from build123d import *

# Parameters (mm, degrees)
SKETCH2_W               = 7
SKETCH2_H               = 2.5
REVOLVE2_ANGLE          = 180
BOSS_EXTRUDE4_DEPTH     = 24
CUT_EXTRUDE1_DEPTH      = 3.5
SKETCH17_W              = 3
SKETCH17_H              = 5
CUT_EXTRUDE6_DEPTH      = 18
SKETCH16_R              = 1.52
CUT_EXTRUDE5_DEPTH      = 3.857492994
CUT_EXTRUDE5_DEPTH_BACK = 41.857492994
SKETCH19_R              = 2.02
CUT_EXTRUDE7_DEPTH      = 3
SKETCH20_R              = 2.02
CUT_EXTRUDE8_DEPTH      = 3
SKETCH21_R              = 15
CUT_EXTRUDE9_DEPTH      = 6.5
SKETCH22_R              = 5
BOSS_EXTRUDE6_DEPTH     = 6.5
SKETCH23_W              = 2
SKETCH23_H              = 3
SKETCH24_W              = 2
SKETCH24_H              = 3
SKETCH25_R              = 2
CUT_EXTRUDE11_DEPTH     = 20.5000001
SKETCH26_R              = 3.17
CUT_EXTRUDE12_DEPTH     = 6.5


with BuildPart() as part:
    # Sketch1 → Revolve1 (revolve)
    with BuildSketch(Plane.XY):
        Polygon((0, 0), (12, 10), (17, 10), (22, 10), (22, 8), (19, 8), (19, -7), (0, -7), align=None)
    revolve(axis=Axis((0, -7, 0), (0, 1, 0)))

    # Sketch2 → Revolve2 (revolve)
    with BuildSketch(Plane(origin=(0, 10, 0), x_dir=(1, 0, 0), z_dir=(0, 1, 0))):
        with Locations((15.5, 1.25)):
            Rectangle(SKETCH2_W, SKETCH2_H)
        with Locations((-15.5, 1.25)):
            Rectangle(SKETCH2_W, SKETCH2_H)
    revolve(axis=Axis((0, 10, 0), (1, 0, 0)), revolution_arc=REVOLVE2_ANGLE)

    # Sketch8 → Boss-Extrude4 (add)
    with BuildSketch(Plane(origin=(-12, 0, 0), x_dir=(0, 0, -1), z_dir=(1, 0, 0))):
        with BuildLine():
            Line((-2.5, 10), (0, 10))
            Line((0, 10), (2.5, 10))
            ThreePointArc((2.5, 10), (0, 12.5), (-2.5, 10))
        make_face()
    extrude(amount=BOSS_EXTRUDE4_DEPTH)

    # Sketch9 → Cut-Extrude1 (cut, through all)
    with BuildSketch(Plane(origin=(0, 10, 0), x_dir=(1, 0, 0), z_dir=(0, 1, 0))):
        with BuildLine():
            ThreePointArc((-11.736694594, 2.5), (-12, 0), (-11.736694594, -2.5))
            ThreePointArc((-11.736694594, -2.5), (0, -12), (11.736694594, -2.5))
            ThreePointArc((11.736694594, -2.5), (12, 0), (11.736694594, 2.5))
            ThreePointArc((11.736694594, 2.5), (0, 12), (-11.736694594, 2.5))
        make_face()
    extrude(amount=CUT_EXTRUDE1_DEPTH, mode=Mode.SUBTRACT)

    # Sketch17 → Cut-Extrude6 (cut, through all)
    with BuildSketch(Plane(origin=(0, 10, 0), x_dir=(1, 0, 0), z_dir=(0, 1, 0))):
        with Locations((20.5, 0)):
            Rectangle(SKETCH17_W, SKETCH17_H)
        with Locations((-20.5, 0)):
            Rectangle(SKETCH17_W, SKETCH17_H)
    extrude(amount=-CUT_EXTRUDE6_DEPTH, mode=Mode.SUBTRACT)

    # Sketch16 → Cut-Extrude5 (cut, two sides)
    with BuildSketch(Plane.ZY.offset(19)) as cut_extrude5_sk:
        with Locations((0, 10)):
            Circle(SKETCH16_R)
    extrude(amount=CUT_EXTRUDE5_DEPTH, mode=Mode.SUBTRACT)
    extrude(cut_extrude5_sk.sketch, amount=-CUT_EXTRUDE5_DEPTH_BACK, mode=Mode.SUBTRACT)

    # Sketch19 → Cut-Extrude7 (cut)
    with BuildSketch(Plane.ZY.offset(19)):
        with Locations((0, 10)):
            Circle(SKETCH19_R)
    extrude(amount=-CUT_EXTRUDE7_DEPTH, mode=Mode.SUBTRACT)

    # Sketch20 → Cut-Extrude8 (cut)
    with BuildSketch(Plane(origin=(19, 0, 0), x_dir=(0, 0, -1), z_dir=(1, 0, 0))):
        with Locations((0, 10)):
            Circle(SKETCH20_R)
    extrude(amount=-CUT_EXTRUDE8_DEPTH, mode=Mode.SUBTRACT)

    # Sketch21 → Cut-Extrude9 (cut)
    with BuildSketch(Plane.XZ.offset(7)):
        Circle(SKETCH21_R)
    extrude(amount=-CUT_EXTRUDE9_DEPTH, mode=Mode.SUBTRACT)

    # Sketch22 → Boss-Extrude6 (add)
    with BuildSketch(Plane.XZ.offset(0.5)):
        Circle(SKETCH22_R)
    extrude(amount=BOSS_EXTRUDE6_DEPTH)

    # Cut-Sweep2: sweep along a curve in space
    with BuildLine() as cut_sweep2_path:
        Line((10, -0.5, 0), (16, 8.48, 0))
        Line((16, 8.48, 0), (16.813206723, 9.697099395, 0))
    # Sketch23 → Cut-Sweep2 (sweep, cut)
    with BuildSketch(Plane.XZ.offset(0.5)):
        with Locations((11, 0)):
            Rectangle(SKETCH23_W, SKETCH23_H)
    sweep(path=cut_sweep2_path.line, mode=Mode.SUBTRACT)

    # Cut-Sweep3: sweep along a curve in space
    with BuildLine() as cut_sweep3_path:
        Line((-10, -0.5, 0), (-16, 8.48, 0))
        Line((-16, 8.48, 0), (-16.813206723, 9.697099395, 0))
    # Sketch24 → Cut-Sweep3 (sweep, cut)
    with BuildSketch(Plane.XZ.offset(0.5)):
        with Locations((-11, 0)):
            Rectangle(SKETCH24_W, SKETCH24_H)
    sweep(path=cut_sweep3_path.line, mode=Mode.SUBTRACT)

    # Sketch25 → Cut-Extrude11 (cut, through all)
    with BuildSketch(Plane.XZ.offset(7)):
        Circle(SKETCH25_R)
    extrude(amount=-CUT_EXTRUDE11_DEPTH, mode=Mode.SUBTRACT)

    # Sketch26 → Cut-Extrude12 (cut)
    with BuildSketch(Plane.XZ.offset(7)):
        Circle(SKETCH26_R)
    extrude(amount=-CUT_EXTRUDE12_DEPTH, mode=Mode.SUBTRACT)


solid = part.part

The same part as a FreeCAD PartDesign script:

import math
import FreeCAD as App
import Part
import Sketcher
Q = App.Units.Quantity


def add_polygon(sketch, points):
    """Adds a closed chain of lines whose ends are joined by coincident constraints."""
    first, n = sketch.GeometryCount, len(points)
    for a, b in zip(points, points[1:] + points[:1]):
        sketch.addGeometry(Part.LineSegment(App.Vector(*a, 0), App.Vector(*b, 0)), False)
    for i in range(n):
        sketch.addConstraint(Sketcher.Constraint("Coincident", first + i, 2, first + (i + 1) % n, 1))

doc = App.newDocument("Part")
body = doc.addObject("PartDesign::Body", "Body")

sketch1 = body.newObject("Sketcher::SketchObject", "Sketch")
sketch1.AttachmentSupport = (doc.getObject("XY_Plane"), [""])
sketch1.MapMode = "FlatFace"
add_polygon(sketch1, [(12, 10), (0, 0), (0, -7), (19, -7), (19, 8), (22, 8), (22, 10)])
sketch1.addConstraint([
    Sketcher.Constraint("Vertical", 1),
    Sketcher.Constraint("Horizontal", 2),
    Sketcher.Constraint("Vertical", 3),
    Sketcher.Constraint("Horizontal", 4),
    Sketcher.Constraint("Vertical", 5),
    Sketcher.Constraint("Horizontal", 6),
    Sketcher.Constraint("Coincident", 0, 2, -1, 1),
    Sketcher.Constraint("DistanceX", 2, 1, 2, 2, Q("19 mm")),
    Sketcher.Constraint("DistanceX", 4, 1, 4, 2, Q("3 mm")),
    Sketcher.Constraint("DistanceX", 6, 2, 6, 1, Q("10 mm")),
    Sketcher.Constraint("DistanceY", 1, 2, 1, 1, Q("7 mm")),
    Sketcher.Constraint("DistanceY", 3, 1, 3, 2, Q("15 mm")),
    Sketcher.Constraint("DistanceY", 5, 1, 5, 2, Q("2 mm")),
])
revolution = body.newObject("PartDesign::Revolution", "Revolution")
revolution.Profile = sketch1
revolution.ReferenceAxis = (sketch1, ["V_Axis"])
revolution.Angle = 360

sketch2 = body.newObject("Sketcher::SketchObject", "Sketch001")
sketch2.AttachmentSupport = (doc.getObject("XZ_Plane"), [""])
sketch2.MapMode = "FlatFace"
sketch2.AttachmentOffset = App.Placement(App.Vector(0, 0, -10), App.Rotation())
add_polygon(sketch2, [(12, -2.5), (12, 0), (19, 0), (19, -2.5)])
add_polygon(sketch2, [(-19, -2.5), (-19, 0), (-12, 0), (-12, -2.5)])
sketch2.addConstraint([
    Sketcher.Constraint("Vertical", 0),
    Sketcher.Constraint("Horizontal", 1),
    Sketcher.Constraint("Vertical", 2),
    Sketcher.Constraint("Horizontal", 3),
    Sketcher.Constraint("Vertical", 4),
    Sketcher.Constraint("Horizontal", 5),
    Sketcher.Constraint("Vertical", 6),
    Sketcher.Constraint("Horizontal", 7),
    Sketcher.Constraint("Symmetric", 1, 2, 4, 2, -1, 1),
    Sketcher.Constraint("Symmetric", 0, 2, 5, 2, -2),
    Sketcher.Constraint("Horizontal", 3, 2, 6, 2),
    Sketcher.Constraint("DistanceX", 1, 1, 1, 2, Q("7 mm")),
    Sketcher.Constraint("DistanceY", 0, 1, 0, 2, Q("2.5 mm")),
    Sketcher.Constraint("DistanceX", -1, 1, 0, 2, Q("12 mm")),
])
revolution2 = body.newObject("PartDesign::Revolution", "Revolution001")
revolution2.Profile = sketch2
revolution2.ReferenceAxis = (sketch2, ["H_Axis"])
revolution2.Angle = 180

sketch3 = body.newObject("Sketcher::SketchObject", "Sketch002")
sketch3.AttachmentSupport = (doc.getObject("YZ_Plane"), [""])
sketch3.MapMode = "FlatFace"
sketch3.AttachmentOffset = App.Placement(App.Vector(0, 0, -12), App.Rotation())
sketch3.addGeometry([
    Part.LineSegment(App.Vector(10, 2.5, 0), App.Vector(10, -2.5, 0)),
    Part.ArcOfCircle(Part.Circle(App.Vector(10, 0, 0), App.Vector(0, 0, 1), 2.5), math.radians(-90), math.radians(90)),
], False)
sketch3.addConstraint([
    Sketcher.Constraint("Coincident", 0, 1, 1, 2),
    Sketcher.Constraint("Coincident", 1, 1, 0, 2),
    Sketcher.Constraint("Vertical", 0),
    Sketcher.Constraint("PointOnObject", 1, 3, -1),
    Sketcher.Constraint("Vertical", 1, 3, 0, 1),
    Sketcher.Constraint("Radius", 1, Q("2.5 mm")),
    Sketcher.Constraint("DistanceX", -1, 1, 1, 3, Q("10 mm")),
])
pad1 = body.newObject("PartDesign::Pad", "Pad")
pad1.Profile = sketch3
pad1.Length = 24

sketch4 = body.newObject("Sketcher::SketchObject", "Sketch003")
sketch4.AttachmentSupport = (doc.getObject("XZ_Plane"), [""])
sketch4.MapMode = "FlatFace"
sketch4.AttachmentOffset = App.Placement(App.Vector(0, 0, -10), App.Rotation())
sketch4.addGeometry([
    Part.ArcOfCircle(Part.Circle(App.Vector(0, 0, 0), App.Vector(0, 0, 1), 12), math.radians(168), math.radians(192)),
    Part.ArcOfCircle(Part.Circle(App.Vector(0, 0, 0), App.Vector(0, 0, 1), 12), math.radians(12), math.radians(168)),
    Part.ArcOfCircle(Part.Circle(App.Vector(0, 0, 0), App.Vector(0, 0, 1), 12), math.radians(-12), math.radians(12)),
    Part.ArcOfCircle(Part.Circle(App.Vector(0, 0, 0), App.Vector(0, 0, 1), 12), math.radians(-168), math.radians(-12)),
], False)
sketch4.addConstraint([
    Sketcher.Constraint("Tangent", 0, 1, 1, 2),
    Sketcher.Constraint("Tangent", 1, 1, 2, 2),
    Sketcher.Constraint("Tangent", 2, 1, 3, 2),
    Sketcher.Constraint("Tangent", 3, 1, 0, 2),
    Sketcher.Constraint("Coincident", 0, 3, -1, 1),
    Sketcher.Constraint("Equal", 0, 1),
    Sketcher.Constraint("Horizontal", 0, 1, 1, 1),
    Sketcher.Constraint("Horizontal", 2, 1, 3, 1),
    Sketcher.Constraint("Vertical", 1, 1, 2, 1),
    Sketcher.Constraint("Radius", 0, Q("12 mm")),
    Sketcher.Constraint("DistanceY", 2, 1, 1, 1, Q("5 mm")),
])
pocket1 = body.newObject("PartDesign::Pocket", "Pocket")
pocket1.Profile = sketch4
pocket1.Type = "ThroughAll"

sketch5 = body.newObject("Sketcher::SketchObject", "Sketch004")
sketch5.AttachmentSupport = (doc.getObject("XZ_Plane"), [""])
sketch5.MapMode = "FlatFace"
sketch5.AttachmentOffset = App.Placement(App.Vector(0, 0, -10), App.Rotation())
add_polygon(sketch5, [(19, -2.5), (19, 2.5), (22, 2.5), (22, -2.5)])
add_polygon(sketch5, [(-22, -2.5), (-22, 2.5), (-19, 2.5), (-19, -2.5)])
sketch5.addConstraint([
    Sketcher.Constraint("Vertical", 0),
    Sketcher.Constraint("Horizontal", 1),
    Sketcher.Constraint("Vertical", 2),
    Sketcher.Constraint("Horizontal", 3),
    Sketcher.Constraint("Vertical", 4),
    Sketcher.Constraint("Horizontal", 5),
    Sketcher.Constraint("Vertical", 6),
    Sketcher.Constraint("Horizontal", 7),
    Sketcher.Constraint("Symmetric", 2, 2, 4, 2, -1, 1),
    Sketcher.Constraint("Symmetric", 0, 2, 6, 2, -1, 1),
    Sketcher.Constraint("Horizontal", 1, 2, 4, 2),
    Sketcher.Constraint("DistanceX", 1, 1, 1, 2, Q("3 mm")),
    Sketcher.Constraint("DistanceY", 0, 1, 0, 2, Q("5 mm")),
    Sketcher.Constraint("DistanceX", -1, 1, 0, 2, Q("19 mm")),
])
pocket2 = body.newObject("PartDesign::Pocket", "Pocket001")
pocket2.Profile = sketch5
pocket2.Type = "ThroughAll"
pocket2.Reversed = True

sketch6 = body.newObject("Sketcher::SketchObject", "Sketch005")
sketch6.AttachmentSupport = (doc.getObject("YZ_Plane"), [""])
sketch6.MapMode = "FlatFace"
sketch6.AttachmentOffset = App.Placement(App.Vector(0, 0, -19), App.Rotation())
sketch6.addGeometry(Part.Circle(App.Vector(10, 0, 0), App.Vector(0, 0, 1), 1.5), False)
sketch6.addConstraint([
    Sketcher.Constraint("PointOnObject", 0, 3, -1),
    Sketcher.Constraint("Diameter", 0, Q("3.04 mm")),
    Sketcher.Constraint("DistanceX", -1, 1, 0, 3, Q("10 mm")),
])
pocket3 = body.newObject("PartDesign::Pocket", "Pocket002")
pocket3.Profile = sketch6
pocket3.Type = "ThroughAll"
pocket3.Midplane = True

sketch7 = body.newObject("Sketcher::SketchObject", "Sketch006")
sketch7.AttachmentSupport = (doc.getObject("YZ_Plane"), [""])
sketch7.MapMode = "FlatFace"
sketch7.AttachmentOffset = App.Placement(App.Vector(0, 0, -19), App.Rotation())
sketch7.addGeometry(Part.Circle(App.Vector(10, 0, 0), App.Vector(0, 0, 1), 2), False)
sketch7.addConstraint([
    Sketcher.Constraint("PointOnObject", 0, 3, -1),
    Sketcher.Constraint("Diameter", 0, Q("4.04 mm")),
    Sketcher.Constraint("DistanceX", -1, 1, 0, 3, Q("10 mm")),
])
pocket4 = body.newObject("PartDesign::Pocket", "Pocket003")
pocket4.Profile = sketch7
pocket4.Length = 3
pocket4.Reversed = True

sketch8 = body.newObject("Sketcher::SketchObject", "Sketch007")
sketch8.AttachmentSupport = (doc.getObject("YZ_Plane"), [""])
sketch8.MapMode = "FlatFace"
sketch8.AttachmentOffset = App.Placement(App.Vector(0, 0, 19), App.Rotation())
sketch8.addGeometry(Part.Circle(App.Vector(10, 0, 0), App.Vector(0, 0, 1), 2), False)
sketch8.addConstraint([
    Sketcher.Constraint("PointOnObject", 0, 3, -1),
    Sketcher.Constraint("Diameter", 0, Q("4.04 mm")),
    Sketcher.Constraint("DistanceX", -1, 1, 0, 3, Q("10 mm")),
])
pocket5 = body.newObject("PartDesign::Pocket", "Pocket004")
pocket5.Profile = sketch8
pocket5.Length = 3

sketch9 = body.newObject("Sketcher::SketchObject", "Sketch008")
sketch9.AttachmentSupport = (doc.getObject("XZ_Plane"), [""])
sketch9.MapMode = "FlatFace"
sketch9.AttachmentOffset = App.Placement(App.Vector(0, 0, 7), App.Rotation())
sketch9.addGeometry(Part.Circle(App.Vector(0, 0, 0), App.Vector(0, 0, 1), 15), False)
sketch9.addConstraint([
    Sketcher.Constraint("Coincident", 0, 3, -1, 1),
    Sketcher.Constraint("Diameter", 0, Q("30 mm")),
])
pocket6 = body.newObject("PartDesign::Pocket", "Pocket005")
pocket6.Profile = sketch9
pocket6.Length = 6.5

sketch10 = body.newObject("Sketcher::SketchObject", "Sketch009")
sketch10.AttachmentSupport = (doc.getObject("XZ_Plane"), [""])
sketch10.MapMode = "FlatFace"
sketch10.AttachmentOffset = App.Placement(App.Vector(0, 0, 0.5), App.Rotation())
sketch10.addGeometry(Part.Circle(App.Vector(0, 0, 0), App.Vector(0, 0, 1), 5), False)
sketch10.addConstraint([
    Sketcher.Constraint("Coincident", 0, 3, -1, 1),
    Sketcher.Constraint("Diameter", 0, Q("10 mm")),
])
pad2 = body.newObject("PartDesign::Pad", "Pad001")
pad2.Profile = sketch10
pad2.Length = 6.5

sketch11 = body.newObject("Sketcher::SketchObject", "Sketch010")
sketch11.AttachmentSupport = (doc.getObject("XZ_Plane"), [""])
sketch11.MapMode = "FlatFace"
sketch11.AttachmentOffset = App.Placement(App.Vector(0, 0, 0.5), App.Rotation())
add_polygon(sketch11, [(10, 1.5), (10, -1.5), (12, -1.5), (12, 1.5)])
sketch11.addConstraint([
    Sketcher.Constraint("Vertical", 0),
    Sketcher.Constraint("Horizontal", 1),
    Sketcher.Constraint("Vertical", 2),
    Sketcher.Constraint("Horizontal", 3),
    Sketcher.Constraint("DistanceX", 1, 1, 1, 2, Q("2 mm")),
    Sketcher.Constraint("DistanceY", 0, 2, 0, 1, Q("3 mm")),
    Sketcher.Constraint("DistanceX", -1, 1, 0, 2, Q("10 mm")),
    Sketcher.Constraint("DistanceY", 0, 2, -1, 1, Q("1.5 mm")),
])

sketch12 = body.newObject("Sketcher::SketchObject", "Sketch011")
sketch12.Placement = App.Placement(App.Vector(7.144557, -4.773646, 0), App.Rotation(App.Vector(0.555554603, 0.831480056, 0), App.Vector(0, 0, 1), App.Vector(0.831480056, -0.555554603, 0), "ZXY"))
sketch12.addGeometry([
    Part.LineSegment(App.Vector(5.1, 0, 0), App.Vector(15.9, 0, 0)),
    Part.LineSegment(App.Vector(15.9, 0, 0), App.Vector(17.4, 0, 0)),
], False)
sketch12.addConstraint([
    Sketcher.Constraint("Coincident", 0, 2, 1, 1),
    Sketcher.Constraint("Horizontal", 0),
    Sketcher.Constraint("Horizontal", 1),
    Sketcher.Constraint("PointOnObject", 0, 1, -1),
    Sketcher.Constraint("DistanceX", 0, 1, 0, 2, Q("10.800019 mm")),
    Sketcher.Constraint("DistanceX", -1, 1, 1, 2, Q("17.403599 mm")),
    Sketcher.Constraint("DistanceX", 1, 1, 1, 2, Q("1.463775 mm")),
])
doc.recompute()

subtractivepipe = body.newObject("PartDesign::SubtractivePipe", "SubtractivePipe")
subtractivepipe.Profile = sketch11
subtractivepipe.Spine = (sketch12, ["Edge1", "Edge2"])

sketch13 = body.newObject("Sketcher::SketchObject", "Sketch012")
sketch13.AttachmentSupport = (doc.getObject("XZ_Plane"), [""])
sketch13.MapMode = "FlatFace"
sketch13.AttachmentOffset = App.Placement(App.Vector(0, 0, 0.5), App.Rotation())
add_polygon(sketch13, [(-12, 1.5), (-12, -1.5), (-10, -1.5), (-10, 1.5)])
sketch13.addConstraint([
    Sketcher.Constraint("Vertical", 0),
    Sketcher.Constraint("Horizontal", 1),
    Sketcher.Constraint("Vertical", 2),
    Sketcher.Constraint("Horizontal", 3),
    Sketcher.Constraint("DistanceX", 1, 1, 1, 2, Q("2 mm")),
    Sketcher.Constraint("DistanceY", 0, 2, 0, 1, Q("3 mm")),
    Sketcher.Constraint("DistanceX", 0, 2, -1, 1, Q("12 mm")),
    Sketcher.Constraint("DistanceY", 0, 2, -1, 1, Q("1.5 mm")),
])

sketch14 = body.newObject("Sketcher::SketchObject", "Sketch013")
sketch14.Placement = App.Placement(App.Vector(-7.144557, -4.773646, 0), App.Rotation(App.Vector(-0.555554603, 0.831480056, 0), App.Vector(0, 0, 1), App.Vector(0.831480056, 0.555554603, 0), "ZXY"))
sketch14.addGeometry([
    Part.LineSegment(App.Vector(5.1, 0, 0), App.Vector(15.9, 0, 0)),
    Part.LineSegment(App.Vector(15.9, 0, 0), App.Vector(17.4, 0, 0)),
], False)
sketch14.addConstraint([
    Sketcher.Constraint("Coincident", 0, 2, 1, 1),
    Sketcher.Constraint("Horizontal", 0),
    Sketcher.Constraint("Horizontal", 1),
    Sketcher.Constraint("PointOnObject", 0, 1, -1),
    Sketcher.Constraint("DistanceX", 0, 1, 0, 2, Q("10.800019 mm")),
    Sketcher.Constraint("DistanceX", -1, 1, 1, 2, Q("17.403599 mm")),
    Sketcher.Constraint("DistanceX", 1, 1, 1, 2, Q("1.463775 mm")),
])
doc.recompute()

subtractivepipe2 = body.newObject("PartDesign::SubtractivePipe", "SubtractivePipe001")
subtractivepipe2.Profile = sketch13
subtractivepipe2.Spine = (sketch14, ["Edge1", "Edge2"])

sketch15 = body.newObject("Sketcher::SketchObject", "Sketch014")
sketch15.AttachmentSupport = (doc.getObject("XZ_Plane"), [""])
sketch15.MapMode = "FlatFace"
sketch15.AttachmentOffset = App.Placement(App.Vector(0, 0, 7), App.Rotation())
sketch15.addGeometry(Part.Circle(App.Vector(0, 0, 0), App.Vector(0, 0, 1), 2), False)
sketch15.addConstraint([
    Sketcher.Constraint("Coincident", 0, 3, -1, 1),
    Sketcher.Constraint("Diameter", 0, Q("4 mm")),
])
pocket7 = body.newObject("PartDesign::Pocket", "Pocket006")
pocket7.Profile = sketch15
pocket7.Type = "ThroughAll"

sketch16 = body.newObject("Sketcher::SketchObject", "Sketch015")
sketch16.AttachmentSupport = (doc.getObject("XZ_Plane"), [""])
sketch16.MapMode = "FlatFace"
sketch16.AttachmentOffset = App.Placement(App.Vector(0, 0, 7), App.Rotation())
sketch16.addGeometry(Part.Circle(App.Vector(0, 0, 0), App.Vector(0, 0, 1), 3.2), False)
sketch16.addConstraint([
    Sketcher.Constraint("Coincident", 0, 3, -1, 1),
    Sketcher.Constraint("Diameter", 0, Q("6.34 mm")),
])
pocket8 = body.newObject("PartDesign::Pocket", "Pocket007")
pocket8.Profile = sketch16
pocket8.Length = 6.5

doc.recompute()
